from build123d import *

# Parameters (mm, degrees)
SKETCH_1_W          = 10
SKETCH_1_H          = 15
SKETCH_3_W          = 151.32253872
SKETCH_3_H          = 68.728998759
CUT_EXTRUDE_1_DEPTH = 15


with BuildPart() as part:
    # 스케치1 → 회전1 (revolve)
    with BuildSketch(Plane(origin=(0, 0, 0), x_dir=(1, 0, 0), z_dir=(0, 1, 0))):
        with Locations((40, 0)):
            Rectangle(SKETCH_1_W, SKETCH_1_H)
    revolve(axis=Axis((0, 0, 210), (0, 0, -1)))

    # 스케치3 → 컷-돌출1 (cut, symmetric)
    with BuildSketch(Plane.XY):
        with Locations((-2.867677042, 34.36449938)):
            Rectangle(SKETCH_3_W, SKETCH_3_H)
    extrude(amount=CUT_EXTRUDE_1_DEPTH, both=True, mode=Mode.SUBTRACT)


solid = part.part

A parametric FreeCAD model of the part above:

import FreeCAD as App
import Part
import Sketcher
Q = App.Units.Quantity


def add_polygon(sketch, points):
    """Adds a closed chain of lines whose ends are joined by coincident constraints."""
    first, n = sketch.GeometryCount, len(points)
    for a, b in zip(points, points[1:] + points[:1]):
        sketch.addGeometry(Part.LineSegment(App.Vector(*a, 0), App.Vector(*b, 0)), False)
    for i in range(n):
        sketch.addConstraint(Sketcher.Constraint("Coincident", first + i, 2, first + (i + 1) % n, 1))

doc = App.newDocument("Part")
body = doc.addObject("PartDesign::Body", "Body")

# Sketch on XZ plane
sketch1 = body.newObject("Sketcher::SketchObject", "Sketch")
sketch1.AttachmentSupport = (doc.getObject("XZ_Plane"), [""])
sketch1.MapMode = "FlatFace"
add_polygon(sketch1, [(35, -8), (35, 8), (45, 8), (45, -8)])  # lines 0-3
sketch1.addConstraint([
    Sketcher.Constraint("Vertical", 0),
    Sketcher.Constraint("Horizontal", 1),
    Sketcher.Constraint("Vertical", 2),
    Sketcher.Constraint("Horizontal", 3),
    Sketcher.Constraint("DistanceX", 1, 1, 1, 2, Q("10 mm")),
    Sketcher.Constraint("DistanceY", 0, 1, 0, 2, Q("15 mm")),
    Sketcher.Constraint("DistanceX", -1, 1, 0, 2, Q("35 mm")),
    Sketcher.Constraint("DistanceY", -1, 1, 0, 2, Q("7.5 mm")),
])
revolution = body.newObject("PartDesign::Revolution", "Revolution")
revolution.Profile = sketch1
revolution.ReferenceAxis = (sketch1, ["V_Axis"])
revolution.Angle = 360

# Sketch on XY plane
sketch2 = body.newObject("Sketcher::SketchObject", "Sketch001")
sketch2.AttachmentSupport = (doc.getObject("XY_Plane"), [""])
sketch2.MapMode = "FlatFace"
add_polygon(sketch2, [(-79, 69), (-79, 0), (73, 0), (73, 69)])  # lines 0-3
sketch2.addConstraint([
    Sketcher.Constraint("Vertical", 0),
    Sketcher.Constraint("Horizontal", 1),
    Sketcher.Constraint("Vertical", 2),
    Sketcher.Constraint("Horizontal", 3),
    Sketcher.Constraint("PointOnObject", 0, 2, -1),
    Sketcher.Constraint("DistanceY", 0, 2, 0, 1, Q("68.728999 mm")),
    Sketcher.Constraint("DistanceX", 1, 1, 1, 2, Q("151.322539 mm")),
    Sketcher.Constraint("DistanceX", 0, 2, -1, 1, Q("78.528946 mm")),
])
pocket1 = body.newObject("PartDesign::Pocket", "Pocket")
pocket1.Profile = sketch2
pocket1.Length = 30
pocket1.Midplane = True

doc.recompute()
